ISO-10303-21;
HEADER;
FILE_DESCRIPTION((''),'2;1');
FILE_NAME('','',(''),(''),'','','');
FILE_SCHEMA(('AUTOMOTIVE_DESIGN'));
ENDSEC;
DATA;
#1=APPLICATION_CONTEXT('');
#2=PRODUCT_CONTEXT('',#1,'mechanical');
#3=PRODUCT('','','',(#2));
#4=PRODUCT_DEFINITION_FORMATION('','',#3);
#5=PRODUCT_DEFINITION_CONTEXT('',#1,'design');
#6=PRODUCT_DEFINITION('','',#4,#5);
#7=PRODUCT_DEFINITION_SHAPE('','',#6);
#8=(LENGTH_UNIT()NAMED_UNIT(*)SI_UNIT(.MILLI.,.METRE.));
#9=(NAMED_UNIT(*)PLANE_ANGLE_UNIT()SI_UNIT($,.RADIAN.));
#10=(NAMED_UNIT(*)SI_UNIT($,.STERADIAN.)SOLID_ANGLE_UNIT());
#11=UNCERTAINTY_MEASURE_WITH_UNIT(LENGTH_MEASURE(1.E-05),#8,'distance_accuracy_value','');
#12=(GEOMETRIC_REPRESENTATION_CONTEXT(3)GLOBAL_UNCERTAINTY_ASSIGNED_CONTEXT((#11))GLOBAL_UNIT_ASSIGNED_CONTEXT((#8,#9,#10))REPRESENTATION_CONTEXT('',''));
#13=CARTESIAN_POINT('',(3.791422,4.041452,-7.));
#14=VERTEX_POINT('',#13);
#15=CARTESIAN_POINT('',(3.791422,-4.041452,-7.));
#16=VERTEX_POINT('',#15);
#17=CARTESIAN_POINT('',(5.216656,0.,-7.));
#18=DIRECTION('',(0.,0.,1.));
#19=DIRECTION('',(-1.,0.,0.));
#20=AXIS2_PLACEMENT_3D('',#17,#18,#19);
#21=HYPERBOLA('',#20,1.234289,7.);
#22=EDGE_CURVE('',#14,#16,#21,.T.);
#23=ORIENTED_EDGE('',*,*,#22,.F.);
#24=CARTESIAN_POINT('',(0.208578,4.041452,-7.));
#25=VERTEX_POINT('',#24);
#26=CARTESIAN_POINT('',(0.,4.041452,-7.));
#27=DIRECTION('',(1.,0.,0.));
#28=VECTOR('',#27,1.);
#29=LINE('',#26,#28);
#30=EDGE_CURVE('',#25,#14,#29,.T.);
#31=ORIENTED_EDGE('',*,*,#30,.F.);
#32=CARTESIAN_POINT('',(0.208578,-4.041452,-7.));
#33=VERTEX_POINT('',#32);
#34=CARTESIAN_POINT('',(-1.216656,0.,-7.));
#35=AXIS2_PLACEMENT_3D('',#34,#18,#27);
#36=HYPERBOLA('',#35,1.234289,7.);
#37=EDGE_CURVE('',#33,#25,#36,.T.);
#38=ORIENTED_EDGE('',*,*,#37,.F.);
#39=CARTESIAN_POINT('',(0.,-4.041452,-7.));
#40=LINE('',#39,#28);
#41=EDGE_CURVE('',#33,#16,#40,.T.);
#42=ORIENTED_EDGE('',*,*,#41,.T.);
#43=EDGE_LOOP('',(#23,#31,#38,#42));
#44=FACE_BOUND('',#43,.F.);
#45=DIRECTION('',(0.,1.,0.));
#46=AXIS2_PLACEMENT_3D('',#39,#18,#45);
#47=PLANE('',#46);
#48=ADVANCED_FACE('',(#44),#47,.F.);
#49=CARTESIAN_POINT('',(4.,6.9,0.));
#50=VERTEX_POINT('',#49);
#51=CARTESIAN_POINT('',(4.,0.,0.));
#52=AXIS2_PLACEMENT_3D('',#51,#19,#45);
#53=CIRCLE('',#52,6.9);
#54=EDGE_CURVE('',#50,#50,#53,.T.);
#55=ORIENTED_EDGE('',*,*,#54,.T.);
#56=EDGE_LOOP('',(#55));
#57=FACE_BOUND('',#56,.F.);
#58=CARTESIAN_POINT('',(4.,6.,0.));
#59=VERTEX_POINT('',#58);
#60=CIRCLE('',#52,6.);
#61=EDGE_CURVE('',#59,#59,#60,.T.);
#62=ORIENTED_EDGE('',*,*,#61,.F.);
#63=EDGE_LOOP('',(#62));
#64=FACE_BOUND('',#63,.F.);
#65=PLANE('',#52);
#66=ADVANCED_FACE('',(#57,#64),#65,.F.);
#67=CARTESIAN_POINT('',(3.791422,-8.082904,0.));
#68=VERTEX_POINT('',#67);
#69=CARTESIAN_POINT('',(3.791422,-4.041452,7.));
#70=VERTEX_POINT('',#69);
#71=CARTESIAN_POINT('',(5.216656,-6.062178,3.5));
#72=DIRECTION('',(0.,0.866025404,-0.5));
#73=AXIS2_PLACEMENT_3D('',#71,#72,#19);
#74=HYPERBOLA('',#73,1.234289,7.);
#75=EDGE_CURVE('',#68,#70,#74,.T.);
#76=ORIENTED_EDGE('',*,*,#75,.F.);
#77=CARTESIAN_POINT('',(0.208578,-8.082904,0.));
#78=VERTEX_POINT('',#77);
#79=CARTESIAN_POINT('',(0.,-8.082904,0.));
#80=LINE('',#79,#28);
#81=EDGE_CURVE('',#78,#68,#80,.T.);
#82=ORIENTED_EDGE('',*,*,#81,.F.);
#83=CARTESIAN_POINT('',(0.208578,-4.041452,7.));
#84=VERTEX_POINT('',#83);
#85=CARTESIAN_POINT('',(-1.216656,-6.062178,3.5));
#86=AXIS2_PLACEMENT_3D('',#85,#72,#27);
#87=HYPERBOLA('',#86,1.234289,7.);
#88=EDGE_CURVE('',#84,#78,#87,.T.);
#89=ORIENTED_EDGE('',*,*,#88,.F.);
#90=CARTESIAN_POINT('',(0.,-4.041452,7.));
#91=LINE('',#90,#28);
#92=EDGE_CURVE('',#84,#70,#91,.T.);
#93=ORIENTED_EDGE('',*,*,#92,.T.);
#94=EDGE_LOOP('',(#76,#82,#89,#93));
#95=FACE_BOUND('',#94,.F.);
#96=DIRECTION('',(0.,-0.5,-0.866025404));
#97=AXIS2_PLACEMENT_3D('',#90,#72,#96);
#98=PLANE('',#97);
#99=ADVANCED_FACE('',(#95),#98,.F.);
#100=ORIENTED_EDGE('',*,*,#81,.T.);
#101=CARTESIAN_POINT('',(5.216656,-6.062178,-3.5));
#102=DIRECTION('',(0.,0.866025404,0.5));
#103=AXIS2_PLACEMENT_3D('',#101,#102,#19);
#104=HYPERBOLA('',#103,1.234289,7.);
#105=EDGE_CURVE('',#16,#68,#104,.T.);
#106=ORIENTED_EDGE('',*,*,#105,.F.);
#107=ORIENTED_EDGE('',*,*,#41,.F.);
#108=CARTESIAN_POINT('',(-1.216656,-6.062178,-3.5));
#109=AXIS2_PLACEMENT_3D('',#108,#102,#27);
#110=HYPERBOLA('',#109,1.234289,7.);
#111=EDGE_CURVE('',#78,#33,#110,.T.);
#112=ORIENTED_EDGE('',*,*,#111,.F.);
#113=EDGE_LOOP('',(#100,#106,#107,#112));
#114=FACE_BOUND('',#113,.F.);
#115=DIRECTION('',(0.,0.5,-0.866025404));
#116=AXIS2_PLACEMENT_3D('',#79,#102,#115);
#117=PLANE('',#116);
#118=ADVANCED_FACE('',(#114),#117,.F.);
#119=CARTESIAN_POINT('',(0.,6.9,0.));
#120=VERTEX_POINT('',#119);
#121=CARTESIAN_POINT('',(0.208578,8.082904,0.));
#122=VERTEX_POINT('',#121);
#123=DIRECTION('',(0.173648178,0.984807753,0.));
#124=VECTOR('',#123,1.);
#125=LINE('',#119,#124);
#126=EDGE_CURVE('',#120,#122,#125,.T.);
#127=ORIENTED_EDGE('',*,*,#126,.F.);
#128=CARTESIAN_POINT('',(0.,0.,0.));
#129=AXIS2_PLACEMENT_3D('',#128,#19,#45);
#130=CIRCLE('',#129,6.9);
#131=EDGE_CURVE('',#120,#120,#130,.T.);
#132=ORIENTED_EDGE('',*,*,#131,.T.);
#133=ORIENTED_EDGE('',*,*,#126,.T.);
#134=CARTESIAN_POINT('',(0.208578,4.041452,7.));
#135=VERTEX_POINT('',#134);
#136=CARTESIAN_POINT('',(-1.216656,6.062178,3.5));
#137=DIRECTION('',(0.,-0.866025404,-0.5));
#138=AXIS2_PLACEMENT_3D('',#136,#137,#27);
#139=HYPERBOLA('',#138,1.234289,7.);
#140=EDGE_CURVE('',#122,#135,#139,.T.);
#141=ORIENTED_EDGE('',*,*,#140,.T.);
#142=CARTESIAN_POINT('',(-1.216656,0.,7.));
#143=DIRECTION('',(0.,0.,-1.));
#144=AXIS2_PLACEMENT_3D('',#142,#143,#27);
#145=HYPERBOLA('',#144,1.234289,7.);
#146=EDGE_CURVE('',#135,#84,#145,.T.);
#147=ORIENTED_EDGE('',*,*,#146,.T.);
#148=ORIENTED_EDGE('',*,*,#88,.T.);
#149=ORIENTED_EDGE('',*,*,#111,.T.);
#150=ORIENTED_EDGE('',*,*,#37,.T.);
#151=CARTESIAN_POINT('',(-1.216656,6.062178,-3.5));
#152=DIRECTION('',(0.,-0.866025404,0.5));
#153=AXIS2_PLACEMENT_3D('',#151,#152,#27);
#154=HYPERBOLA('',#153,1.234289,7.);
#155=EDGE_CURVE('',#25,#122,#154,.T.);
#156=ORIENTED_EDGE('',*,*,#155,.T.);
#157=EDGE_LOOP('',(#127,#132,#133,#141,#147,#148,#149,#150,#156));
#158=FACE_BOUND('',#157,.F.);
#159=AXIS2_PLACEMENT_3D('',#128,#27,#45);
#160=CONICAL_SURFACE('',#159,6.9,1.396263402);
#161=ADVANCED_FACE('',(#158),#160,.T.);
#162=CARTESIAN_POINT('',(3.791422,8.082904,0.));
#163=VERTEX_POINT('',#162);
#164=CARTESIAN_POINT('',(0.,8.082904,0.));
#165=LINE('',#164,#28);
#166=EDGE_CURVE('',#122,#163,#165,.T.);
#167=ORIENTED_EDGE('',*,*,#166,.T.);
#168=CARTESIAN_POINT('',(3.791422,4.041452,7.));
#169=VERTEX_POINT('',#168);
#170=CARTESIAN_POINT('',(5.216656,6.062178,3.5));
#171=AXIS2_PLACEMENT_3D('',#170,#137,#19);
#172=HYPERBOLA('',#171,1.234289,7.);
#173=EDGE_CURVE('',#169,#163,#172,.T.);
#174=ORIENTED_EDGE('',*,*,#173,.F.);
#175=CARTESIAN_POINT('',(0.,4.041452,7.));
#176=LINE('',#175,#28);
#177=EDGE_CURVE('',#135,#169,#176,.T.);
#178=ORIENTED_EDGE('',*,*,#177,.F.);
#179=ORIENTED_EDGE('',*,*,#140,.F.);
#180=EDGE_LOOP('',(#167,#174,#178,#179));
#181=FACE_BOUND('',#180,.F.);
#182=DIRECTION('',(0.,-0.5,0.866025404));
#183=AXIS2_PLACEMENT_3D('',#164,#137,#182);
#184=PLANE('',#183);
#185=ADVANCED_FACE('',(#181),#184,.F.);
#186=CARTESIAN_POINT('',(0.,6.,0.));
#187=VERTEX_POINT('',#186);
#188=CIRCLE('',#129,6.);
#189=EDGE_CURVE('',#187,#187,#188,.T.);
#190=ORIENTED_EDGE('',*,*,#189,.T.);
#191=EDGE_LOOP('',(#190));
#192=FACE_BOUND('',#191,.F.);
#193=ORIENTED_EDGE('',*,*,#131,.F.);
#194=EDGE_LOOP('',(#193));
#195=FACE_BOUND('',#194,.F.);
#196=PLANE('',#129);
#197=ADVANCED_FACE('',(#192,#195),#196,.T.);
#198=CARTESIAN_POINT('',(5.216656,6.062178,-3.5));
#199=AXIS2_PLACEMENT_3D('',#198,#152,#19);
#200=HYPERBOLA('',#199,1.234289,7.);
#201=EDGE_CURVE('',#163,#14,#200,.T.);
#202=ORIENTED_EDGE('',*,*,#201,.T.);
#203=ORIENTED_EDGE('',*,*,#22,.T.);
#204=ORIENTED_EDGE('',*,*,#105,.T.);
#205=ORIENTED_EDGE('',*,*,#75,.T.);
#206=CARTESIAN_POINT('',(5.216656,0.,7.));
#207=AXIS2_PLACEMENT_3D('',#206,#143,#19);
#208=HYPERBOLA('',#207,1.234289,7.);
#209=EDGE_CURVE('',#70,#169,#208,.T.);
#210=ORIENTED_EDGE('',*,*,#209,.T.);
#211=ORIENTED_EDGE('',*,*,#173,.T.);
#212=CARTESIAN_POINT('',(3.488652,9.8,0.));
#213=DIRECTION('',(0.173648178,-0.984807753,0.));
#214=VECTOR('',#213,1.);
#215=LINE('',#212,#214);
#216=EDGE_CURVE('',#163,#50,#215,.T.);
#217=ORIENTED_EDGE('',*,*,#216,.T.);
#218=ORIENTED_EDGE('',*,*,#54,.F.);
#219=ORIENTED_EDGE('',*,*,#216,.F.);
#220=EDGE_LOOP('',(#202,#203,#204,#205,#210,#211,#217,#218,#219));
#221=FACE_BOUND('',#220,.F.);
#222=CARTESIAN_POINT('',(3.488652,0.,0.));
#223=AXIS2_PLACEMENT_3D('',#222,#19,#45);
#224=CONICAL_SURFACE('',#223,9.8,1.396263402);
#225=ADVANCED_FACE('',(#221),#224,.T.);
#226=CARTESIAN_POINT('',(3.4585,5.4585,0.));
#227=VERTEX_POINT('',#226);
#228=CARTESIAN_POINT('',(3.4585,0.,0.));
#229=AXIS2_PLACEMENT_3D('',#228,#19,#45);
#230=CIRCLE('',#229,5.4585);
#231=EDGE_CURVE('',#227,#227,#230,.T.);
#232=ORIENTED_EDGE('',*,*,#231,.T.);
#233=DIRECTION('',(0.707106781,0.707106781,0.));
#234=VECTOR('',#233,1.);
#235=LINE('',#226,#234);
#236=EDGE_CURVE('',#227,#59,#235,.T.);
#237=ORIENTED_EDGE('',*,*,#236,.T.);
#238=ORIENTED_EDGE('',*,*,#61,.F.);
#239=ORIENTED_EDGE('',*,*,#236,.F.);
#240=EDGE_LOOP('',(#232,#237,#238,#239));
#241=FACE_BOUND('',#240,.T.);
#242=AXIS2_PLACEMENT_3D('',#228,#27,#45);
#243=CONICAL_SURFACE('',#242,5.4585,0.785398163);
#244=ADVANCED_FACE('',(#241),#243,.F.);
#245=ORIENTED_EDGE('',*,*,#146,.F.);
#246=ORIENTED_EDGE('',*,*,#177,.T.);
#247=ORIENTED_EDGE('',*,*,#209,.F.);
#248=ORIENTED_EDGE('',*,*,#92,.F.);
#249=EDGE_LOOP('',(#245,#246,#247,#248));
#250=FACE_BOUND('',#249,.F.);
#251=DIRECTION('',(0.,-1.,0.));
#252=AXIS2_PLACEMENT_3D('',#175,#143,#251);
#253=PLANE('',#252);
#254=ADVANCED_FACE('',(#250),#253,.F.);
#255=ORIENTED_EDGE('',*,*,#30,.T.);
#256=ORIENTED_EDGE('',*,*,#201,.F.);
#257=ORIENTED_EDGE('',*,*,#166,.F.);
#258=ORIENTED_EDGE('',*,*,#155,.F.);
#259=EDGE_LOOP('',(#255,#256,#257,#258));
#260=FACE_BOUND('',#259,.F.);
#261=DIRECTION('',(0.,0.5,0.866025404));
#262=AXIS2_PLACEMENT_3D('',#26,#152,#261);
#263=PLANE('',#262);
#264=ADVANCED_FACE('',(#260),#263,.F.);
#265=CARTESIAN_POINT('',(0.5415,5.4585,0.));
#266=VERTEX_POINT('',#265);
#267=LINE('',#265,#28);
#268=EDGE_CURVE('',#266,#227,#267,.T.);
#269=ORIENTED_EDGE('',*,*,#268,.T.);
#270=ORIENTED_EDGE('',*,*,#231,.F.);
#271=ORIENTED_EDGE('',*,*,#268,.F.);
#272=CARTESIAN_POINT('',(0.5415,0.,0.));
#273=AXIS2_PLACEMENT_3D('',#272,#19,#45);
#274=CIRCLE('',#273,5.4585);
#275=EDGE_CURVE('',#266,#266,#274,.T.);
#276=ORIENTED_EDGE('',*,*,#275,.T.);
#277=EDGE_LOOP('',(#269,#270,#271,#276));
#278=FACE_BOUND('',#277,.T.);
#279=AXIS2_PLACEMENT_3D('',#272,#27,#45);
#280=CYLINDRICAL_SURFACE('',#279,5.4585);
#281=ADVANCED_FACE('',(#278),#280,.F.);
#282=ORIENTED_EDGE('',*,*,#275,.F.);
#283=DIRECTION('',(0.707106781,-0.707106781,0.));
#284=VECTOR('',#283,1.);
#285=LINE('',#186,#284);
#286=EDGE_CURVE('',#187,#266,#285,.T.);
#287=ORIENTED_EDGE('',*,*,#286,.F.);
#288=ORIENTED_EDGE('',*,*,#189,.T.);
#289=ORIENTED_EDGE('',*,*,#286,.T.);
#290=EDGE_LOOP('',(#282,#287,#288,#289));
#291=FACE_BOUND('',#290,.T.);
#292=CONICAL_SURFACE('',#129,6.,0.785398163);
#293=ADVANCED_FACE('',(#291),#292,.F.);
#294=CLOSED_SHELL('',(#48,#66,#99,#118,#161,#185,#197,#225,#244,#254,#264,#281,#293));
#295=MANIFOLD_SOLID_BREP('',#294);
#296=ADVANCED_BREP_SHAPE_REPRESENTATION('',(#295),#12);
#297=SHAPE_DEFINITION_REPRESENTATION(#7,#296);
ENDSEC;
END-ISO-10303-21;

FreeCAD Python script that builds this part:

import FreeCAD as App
import Part
import Sketcher

V = App.Vector
Q = App.Units.Quantity


def add_polygon(sketch, points):
    """Adds a closed chain of lines whose ends are joined by coincident constraints."""
    first, n = sketch.GeometryCount, len(points)
    for a, b in zip(points, points[1:] + points[:1]):
        sketch.addGeometry(Part.LineSegment(App.Vector(*a, 0), App.Vector(*b, 0)), False)
    for i in range(n):
        sketch.addConstraint(Sketcher.Constraint("Coincident", first + i, 2, first + (i + 1) % n, 1))

doc = App.newDocument("Part")
params = doc.addObject("Spreadsheet::Sheet", "Params")
for row, (alias, value) in enumerate([
    ("sketch1_width", "4 mm"),
    ("sketch1_height", "6.9 mm"),
    ("revolution_angle", "360 deg"),
    ("sketch2_width", "4 mm"),
    ("sketch2_height", "6 mm"),
    ("groove_angle", "360 deg"),
    ("sketch3_width", "28 mm"),
    ("pocket1_length", "4 mm"),
], start=1):
    params.set(f"A{row}", alias)
    params.set(f"B{row}", "=" + value)
    params.setAlias(f"B{row}", alias)

body = doc.addObject("PartDesign::Body", "Body")

sketch1 = body.newObject("Sketcher::SketchObject", "Sketch")
sketch1.AttachmentSupport = (doc.getObject("XY_Plane"), [""])
sketch1.MapMode = "FlatFace"
add_polygon(sketch1, [(0, 6.9), (0, 0), (4, 0), (4, 6.9), (3.5, 9.8), (0.5, 9.8)])
sketch1.addConstraint([
    Sketcher.Constraint("Vertical", 0),
    Sketcher.Constraint("Horizontal", 1),
    Sketcher.Constraint("Vertical", 2),
    Sketcher.Constraint("Horizontal", 4),
    Sketcher.Constraint("Coincident", 0, 2, -1, 1),
    Sketcher.Constraint("Horizontal", 2, 2, 5, 2),
    Sketcher.Constraint("Equal", 3, 5),
    Sketcher.Constraint("DistanceX", 1, 1, 1, 2, 4.0),
    Sketcher.Constraint("Angle", 3, Q("100 deg")),
    Sketcher.Constraint("DistanceY", 0, 2, 0, 1, 6.9),
    Sketcher.Constraint("DistanceY", -1, 1, 3, 2, 9.8),
])
sketch1.setExpression("Constraints[13]", "Params.sketch1_width")
sketch1.setExpression("Constraints[15]", "Params.sketch1_height")
revolution = body.newObject("PartDesign::Revolution", "Revolution")
revolution.Profile = sketch1
revolution.ReferenceAxis = (sketch1, ["H_Axis"])
revolution.setExpression("Angle", "Params.revolution_angle")

sketch2 = body.newObject("Sketcher::SketchObject", "Sketch001")
sketch2.AttachmentSupport = (doc.getObject("XY_Plane"), [""])
sketch2.MapMode = "FlatFace"
add_polygon(sketch2, [(0, 6), (0, 0), (4, 0), (4, 6), (3.5, 5.5), (0.5, 5.5)])
sketch2.addConstraint([
    Sketcher.Constraint("Vertical", 0),
    Sketcher.Constraint("Horizontal", 1),
    Sketcher.Constraint("Vertical", 2),
    Sketcher.Constraint("Horizontal", 4),
    Sketcher.Constraint("Coincident", 0, 2, -1, 1),
    Sketcher.Constraint("Perpendicular", 3, 5),
    Sketcher.Constraint("Horizontal", 2, 2, 5, 2),
    Sketcher.Constraint("Equal", 3, 5),
    Sketcher.Constraint("DistanceX", 1, 1, 1, 2, 4.0),
    Sketcher.Constraint("DistanceY", 0, 2, 0, 1, 6.0),
    Sketcher.Constraint("DistanceX", 4, 2, 4, 1, 2.917),
])
sketch2.setExpression("Constraints[14]", "Params.sketch2_width")
sketch2.setExpression("Constraints[15]", "Params.sketch2_height")
groove = body.newObject("PartDesign::Groove", "Groove")
groove.Profile = sketch2
groove.ReferenceAxis = (sketch2, ["H_Axis"])
groove.setExpression("Angle", "Params.groove_angle")

sketch3 = body.newObject("Sketcher::SketchObject", "Sketch002")
sketch3.AttachmentSupport = (doc.getObject("YZ_Plane"), [""])
sketch3.MapMode = "FlatFace"
add_polygon(sketch3, [(14, 14), (-14, 14), (-14, -14), (14, -14)])
add_polygon(sketch3, [(-8, 0), (-4, 7), (4, 7), (8, 0), (4, -7), (-4, -7)])
sketch3.addConstraint([
    Sketcher.Constraint("Horizontal", 0),
    Sketcher.Constraint("Vertical", 1),
    Sketcher.Constraint("Horizontal", 2),
    Sketcher.Constraint("Vertical", 3),
    Sketcher.Constraint("Horizontal", 5),
    Sketcher.Constraint("Horizontal", 8),
    Sketcher.Constraint("Symmetric", 0, 2, 2, 2, -1, 1),
    Sketcher.Constraint("Symmetric", 4, 2, 7, 2, -1, 1),
    Sketcher.Constraint("Symmetric", 6, 2, 9, 2, -1, 1),
    Sketcher.Constraint("PointOnObject", 6, 2, -1),
    Sketcher.Constraint("Parallel", 6, 9),
    Sketcher.Constraint("Vertical", 5, 2, 7, 2),
    Sketcher.Constraint("Equal", 2, 1),
    Sketcher.Constraint("DistanceX", 0, 2, 0, 1, 28.0),
    Sketcher.Constraint("Angle", 4, Q("60 deg")),
    Sketcher.Constraint("DistanceY", -1, 1, 4, 2, 7.0),
    Sketcher.Constraint("DistanceX", 5, 1, 5, 2, 8.082904),
])
sketch3.setExpression("Constraints[23]", "Params.sketch3_width")
pocket1 = body.newObject("PartDesign::Pocket", "Pocket")
pocket1.Profile = sketch3
pocket1.setExpression("Length", "Params.pocket1_length")
pocket1.Reversed = True

doc.recompute()
